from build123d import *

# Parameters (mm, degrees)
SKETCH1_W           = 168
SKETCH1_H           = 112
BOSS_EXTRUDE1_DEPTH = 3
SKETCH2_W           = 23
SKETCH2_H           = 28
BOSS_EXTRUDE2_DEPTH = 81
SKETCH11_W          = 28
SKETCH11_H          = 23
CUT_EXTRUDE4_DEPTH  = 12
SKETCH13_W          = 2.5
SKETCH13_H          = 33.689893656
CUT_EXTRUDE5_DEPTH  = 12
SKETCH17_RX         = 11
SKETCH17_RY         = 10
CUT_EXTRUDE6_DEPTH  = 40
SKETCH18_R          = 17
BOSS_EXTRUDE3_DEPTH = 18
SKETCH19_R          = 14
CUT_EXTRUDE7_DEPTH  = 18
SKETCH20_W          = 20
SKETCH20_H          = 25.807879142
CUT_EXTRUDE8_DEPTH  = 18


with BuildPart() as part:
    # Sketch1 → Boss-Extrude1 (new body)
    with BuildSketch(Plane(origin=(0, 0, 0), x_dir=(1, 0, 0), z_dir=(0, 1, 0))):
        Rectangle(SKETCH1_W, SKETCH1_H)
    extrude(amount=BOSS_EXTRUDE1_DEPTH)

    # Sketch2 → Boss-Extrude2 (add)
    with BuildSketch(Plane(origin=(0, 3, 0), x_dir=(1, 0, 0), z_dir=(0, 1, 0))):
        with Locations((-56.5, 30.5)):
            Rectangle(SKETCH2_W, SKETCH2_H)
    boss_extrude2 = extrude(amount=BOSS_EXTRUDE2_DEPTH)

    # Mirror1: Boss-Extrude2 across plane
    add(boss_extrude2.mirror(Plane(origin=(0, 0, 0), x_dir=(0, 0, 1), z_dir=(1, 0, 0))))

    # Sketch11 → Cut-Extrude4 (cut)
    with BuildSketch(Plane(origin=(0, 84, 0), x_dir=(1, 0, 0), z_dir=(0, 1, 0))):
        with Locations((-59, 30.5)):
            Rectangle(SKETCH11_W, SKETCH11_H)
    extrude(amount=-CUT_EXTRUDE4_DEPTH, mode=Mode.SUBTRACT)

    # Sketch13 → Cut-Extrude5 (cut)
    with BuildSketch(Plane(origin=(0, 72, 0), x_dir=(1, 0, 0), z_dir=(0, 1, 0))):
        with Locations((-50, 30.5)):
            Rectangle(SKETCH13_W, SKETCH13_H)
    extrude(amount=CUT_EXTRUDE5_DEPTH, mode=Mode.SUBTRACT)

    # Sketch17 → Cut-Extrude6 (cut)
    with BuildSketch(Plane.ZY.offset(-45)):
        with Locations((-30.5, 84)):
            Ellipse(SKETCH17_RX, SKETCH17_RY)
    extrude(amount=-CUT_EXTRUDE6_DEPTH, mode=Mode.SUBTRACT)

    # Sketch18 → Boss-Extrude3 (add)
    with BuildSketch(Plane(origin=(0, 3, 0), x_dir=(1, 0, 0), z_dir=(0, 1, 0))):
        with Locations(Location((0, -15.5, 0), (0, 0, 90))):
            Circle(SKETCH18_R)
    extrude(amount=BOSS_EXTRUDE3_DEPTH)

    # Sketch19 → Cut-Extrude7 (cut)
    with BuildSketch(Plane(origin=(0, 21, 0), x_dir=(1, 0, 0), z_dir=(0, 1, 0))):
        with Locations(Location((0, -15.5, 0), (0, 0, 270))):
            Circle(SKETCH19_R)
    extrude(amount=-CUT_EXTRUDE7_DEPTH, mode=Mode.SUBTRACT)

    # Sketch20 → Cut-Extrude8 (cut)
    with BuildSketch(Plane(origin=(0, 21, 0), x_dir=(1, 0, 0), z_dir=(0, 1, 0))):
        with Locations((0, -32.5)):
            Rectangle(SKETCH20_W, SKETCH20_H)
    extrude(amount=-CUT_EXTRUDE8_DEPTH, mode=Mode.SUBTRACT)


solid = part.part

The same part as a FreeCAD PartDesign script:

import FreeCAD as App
import Part
import Sketcher

V = App.Vector
Q = App.Units.Quantity


def add_polygon(sketch, points):
    """Adds a closed chain of lines whose ends are joined by coincident constraints."""
    first, n = sketch.GeometryCount, len(points)
    for a, b in zip(points, points[1:] + points[:1]):
        sketch.addGeometry(Part.LineSegment(App.Vector(*a, 0), App.Vector(*b, 0)), False)
    for i in range(n):
        sketch.addConstraint(Sketcher.Constraint("Coincident", first + i, 2, first + (i + 1) % n, 1))

doc = App.newDocument("Part")
body = doc.addObject("PartDesign::Body", "Body")

# Sketch on XZ plane
sketch1 = body.newObject("Sketcher::SketchObject", "Sketch")
sketch1.AttachmentSupport = (doc.getObject("XZ_Plane"), [""])
sketch1.MapMode = "FlatFace"
add_polygon(sketch1, [(-84, -56), (-84, 56), (84, 56), (84, -56)])  # lines 0-3
sketch1.addConstraint([
    Sketcher.Constraint("Vertical", 0),
    Sketcher.Constraint("Horizontal", 1),
    Sketcher.Constraint("Vertical", 2),
    Sketcher.Constraint("Horizontal", 3),
    Sketcher.Constraint("Symmetric", 0, 2, 2, 2, -1, 1),
    Sketcher.Constraint("DistanceX", 1, 1, 1, 2, Q("168 mm")),
    Sketcher.Constraint("DistanceY", 0, 1, 0, 2, Q("112 mm")),
])
pad1 = body.newObject("PartDesign::Pad", "Pad")
pad1.Profile = sketch1
pad1.Length = 3
pad1.Reversed = True

# Sketch on XZ plane
sketch2 = body.newObject("Sketcher::SketchObject", "Sketch001")
sketch2.AttachmentSupport = (doc.getObject("XZ_Plane"), [""])
sketch2.MapMode = "FlatFace"
sketch2.AttachmentOffset = App.Placement(V(0, 0, -3), App.Rotation())
add_polygon(sketch2, [(-68, -44.5), (-68, -16.5), (-45, -16.5), (-45, -44.5)])  # lines 0-3
sketch2.addConstraint([
    Sketcher.Constraint("Vertical", 0),
    Sketcher.Constraint("Horizontal", 1),
    Sketcher.Constraint("Vertical", 2),
    Sketcher.Constraint("Horizontal", 3),
    Sketcher.Constraint("DistanceX", 1, 1, 1, 2, Q("23 mm")),
    Sketcher.Constraint("DistanceY", 0, 1, 0, 2, Q("28 mm")),
    Sketcher.Constraint("DistanceX", 0, 2, -1, 1, Q("68 mm")),
    Sketcher.Constraint("DistanceY", 0, 2, -1, 1, Q("16.5 mm")),
])
pad2 = body.newObject("PartDesign::Pad", "Pad001")
pad2.Profile = sketch2
pad2.Length = 81
pad2.Reversed = True
doc.recompute()

mirrored = body.newObject("PartDesign::Mirrored", "Mirrored")
mirrored.Originals = [pad2]
mirrored.MirrorPlane = (doc.getObject("YZ_Plane"), [""])
body.Tip = mirrored

# Sketch on XZ plane
sketch3 = body.newObject("Sketcher::SketchObject", "Sketch002")
sketch3.AttachmentSupport = (doc.getObject("XZ_Plane"), [""])
sketch3.MapMode = "FlatFace"
sketch3.AttachmentOffset = App.Placement(V(0, 0, -84), App.Rotation())
add_polygon(sketch3, [(-73, -42), (-73, -19), (-45, -19), (-45, -42)])  # lines 0-3
sketch3.addConstraint([
    Sketcher.Constraint("Vertical", 0),
    Sketcher.Constraint("Horizontal", 1),
    Sketcher.Constraint("Vertical", 2),
    Sketcher.Constraint("Horizontal", 3),
    Sketcher.Constraint("DistanceX", 1, 1, 1, 2, Q("28 mm")),
    Sketcher.Constraint("DistanceY", 0, 1, 0, 2, Q("23 mm")),
    Sketcher.Constraint("DistanceX", 0, 2, -1, 1, Q("73 mm")),
    Sketcher.Constraint("DistanceY", 0, 2, -1, 1, Q("19 mm")),
])
pocket1 = body.newObject("PartDesign::Pocket", "Pocket")
pocket1.Profile = sketch3
pocket1.Length = 12
pocket1.Reversed = True

# Sketch on XZ plane
sketch4 = body.newObject("Sketcher::SketchObject", "Sketch003")
sketch4.AttachmentSupport = (doc.getObject("XZ_Plane"), [""])
sketch4.MapMode = "FlatFace"
sketch4.AttachmentOffset = App.Placement(V(0, 0, -72), App.Rotation())
add_polygon(sketch4, [(-51.25, -47.344947), (-51.25, -13.655053), (-48.75, -13.655053), (-48.75, -47.344947)])  # lines 0-3
sketch4.addConstraint([
    Sketcher.Constraint("Vertical", 0),
    Sketcher.Constraint("Horizontal", 1),
    Sketcher.Constraint("Vertical", 2),
    Sketcher.Constraint("Horizontal", 3),
    Sketcher.Constraint("DistanceX", 1, 1, 1, 2, Q("2.5 mm")),
    Sketcher.Constraint("DistanceX", 0, 2, -1, 1, Q("51.25 mm")),
    Sketcher.Constraint("DistanceY", 0, 1, 0, 2, Q("33.689894 mm")),
    Sketcher.Constraint("DistanceY", 0, 2, -1, 1, Q("13.655053 mm")),
])
pocket2 = body.newObject("PartDesign::Pocket", "Pocket001")
pocket2.Profile = sketch4
pocket2.Length = 12

# Sketch on YZ plane
sketch5 = body.newObject("Sketcher::SketchObject", "Sketch004")
sketch5.AttachmentSupport = (doc.getObject("YZ_Plane"), [""])
sketch5.MapMode = "FlatFace"
sketch5.AttachmentOffset = App.Placement(V(0, 0, 45), App.Rotation())
sketch5.addGeometry(Part.Ellipse(V(84, -19.5, 0), V(74, -30.5, 0), V(84, -30.5, 0)), False)
sketch5.addConstraint(Sketcher.Constraint("Block", 0))
pocket3 = body.newObject("PartDesign::Pocket", "Pocket002")
pocket3.Profile = sketch5
pocket3.Length = 40
pocket3.Reversed = True

# Sketch on XZ plane
sketch6 = body.newObject("Sketcher::SketchObject", "Sketch005")
sketch6.AttachmentSupport = (doc.getObject("XZ_Plane"), [""])
sketch6.MapMode = "FlatFace"
sketch6.AttachmentOffset = App.Placement(V(0, 0, -3), App.Rotation())
sketch6.addGeometry(Part.Circle(V(0, 15.5, 0), V(0, 0, 1), 17), False)
sketch6.addConstraint([
    Sketcher.Constraint("PointOnObject", 0, 3, -2),
    Sketcher.Constraint("Diameter", 0, Q("34 mm")),
    Sketcher.Constraint("DistanceY", -1, 1, 0, 3, Q("15.5 mm")),
])
pad3 = body.newObject("PartDesign::Pad", "Pad002")
pad3.Profile = sketch6
pad3.Length = 18
pad3.Reversed = True

# Sketch on XZ plane
sketch7 = body.newObject("Sketcher::SketchObject", "Sketch006")
sketch7.AttachmentSupport = (doc.getObject("XZ_Plane"), [""])
sketch7.MapMode = "FlatFace"
sketch7.AttachmentOffset = App.Placement(V(0, 0, -21), App.Rotation())
sketch7.addGeometry(Part.Circle(V(0, 15.5, 0), V(0, 0, 1), 14), False)
sketch7.addConstraint([
    Sketcher.Constraint("PointOnObject", 0, 3, -2),
    Sketcher.Constraint("Diameter", 0, Q("28 mm")),
    Sketcher.Constraint("DistanceY", -1, 1, 0, 3, Q("15.5 mm")),
])
pocket4 = body.newObject("PartDesign::Pocket", "Pocket003")
pocket4.Profile = sketch7
pocket4.Length = 18
pocket4.Reversed = True

# Sketch on XZ plane
sketch8 = body.newObject("Sketcher::SketchObject", "Sketch007")
sketch8.AttachmentSupport = (doc.getObject("XZ_Plane"), [""])
sketch8.MapMode = "FlatFace"
sketch8.AttachmentOffset = App.Placement(V(0, 0, -21), App.Rotation())
add_polygon(sketch8, [(-10, 19.59606), (-10, 45.40394), (10, 45.40394), (10, 19.59606)])  # lines 0-3
sketch8.addConstraint([
    Sketcher.Constraint("Vertical", 0),
    Sketcher.Constraint("Horizontal", 1),
    Sketcher.Constraint("Vertical", 2),
    Sketcher.Constraint("Horizontal", 3),
    Sketcher.Constraint("DistanceX", 1, 1, 1, 2, Q("20 mm")),
    Sketcher.Constraint("DistanceX", 0, 2, -1, 1, Q("10 mm")),
    Sketcher.Constraint("DistanceY", 0, 1, 0, 2, Q("25.807879 mm")),
    Sketcher.Constraint("DistanceY", -1, 1, 0, 2, Q("45.40394 mm")),
])
pocket5 = body.newObject("PartDesign::Pocket", "Pocket004")
pocket5.Profile = sketch8
pocket5.Length = 18
pocket5.Reversed = True

doc.recompute()
